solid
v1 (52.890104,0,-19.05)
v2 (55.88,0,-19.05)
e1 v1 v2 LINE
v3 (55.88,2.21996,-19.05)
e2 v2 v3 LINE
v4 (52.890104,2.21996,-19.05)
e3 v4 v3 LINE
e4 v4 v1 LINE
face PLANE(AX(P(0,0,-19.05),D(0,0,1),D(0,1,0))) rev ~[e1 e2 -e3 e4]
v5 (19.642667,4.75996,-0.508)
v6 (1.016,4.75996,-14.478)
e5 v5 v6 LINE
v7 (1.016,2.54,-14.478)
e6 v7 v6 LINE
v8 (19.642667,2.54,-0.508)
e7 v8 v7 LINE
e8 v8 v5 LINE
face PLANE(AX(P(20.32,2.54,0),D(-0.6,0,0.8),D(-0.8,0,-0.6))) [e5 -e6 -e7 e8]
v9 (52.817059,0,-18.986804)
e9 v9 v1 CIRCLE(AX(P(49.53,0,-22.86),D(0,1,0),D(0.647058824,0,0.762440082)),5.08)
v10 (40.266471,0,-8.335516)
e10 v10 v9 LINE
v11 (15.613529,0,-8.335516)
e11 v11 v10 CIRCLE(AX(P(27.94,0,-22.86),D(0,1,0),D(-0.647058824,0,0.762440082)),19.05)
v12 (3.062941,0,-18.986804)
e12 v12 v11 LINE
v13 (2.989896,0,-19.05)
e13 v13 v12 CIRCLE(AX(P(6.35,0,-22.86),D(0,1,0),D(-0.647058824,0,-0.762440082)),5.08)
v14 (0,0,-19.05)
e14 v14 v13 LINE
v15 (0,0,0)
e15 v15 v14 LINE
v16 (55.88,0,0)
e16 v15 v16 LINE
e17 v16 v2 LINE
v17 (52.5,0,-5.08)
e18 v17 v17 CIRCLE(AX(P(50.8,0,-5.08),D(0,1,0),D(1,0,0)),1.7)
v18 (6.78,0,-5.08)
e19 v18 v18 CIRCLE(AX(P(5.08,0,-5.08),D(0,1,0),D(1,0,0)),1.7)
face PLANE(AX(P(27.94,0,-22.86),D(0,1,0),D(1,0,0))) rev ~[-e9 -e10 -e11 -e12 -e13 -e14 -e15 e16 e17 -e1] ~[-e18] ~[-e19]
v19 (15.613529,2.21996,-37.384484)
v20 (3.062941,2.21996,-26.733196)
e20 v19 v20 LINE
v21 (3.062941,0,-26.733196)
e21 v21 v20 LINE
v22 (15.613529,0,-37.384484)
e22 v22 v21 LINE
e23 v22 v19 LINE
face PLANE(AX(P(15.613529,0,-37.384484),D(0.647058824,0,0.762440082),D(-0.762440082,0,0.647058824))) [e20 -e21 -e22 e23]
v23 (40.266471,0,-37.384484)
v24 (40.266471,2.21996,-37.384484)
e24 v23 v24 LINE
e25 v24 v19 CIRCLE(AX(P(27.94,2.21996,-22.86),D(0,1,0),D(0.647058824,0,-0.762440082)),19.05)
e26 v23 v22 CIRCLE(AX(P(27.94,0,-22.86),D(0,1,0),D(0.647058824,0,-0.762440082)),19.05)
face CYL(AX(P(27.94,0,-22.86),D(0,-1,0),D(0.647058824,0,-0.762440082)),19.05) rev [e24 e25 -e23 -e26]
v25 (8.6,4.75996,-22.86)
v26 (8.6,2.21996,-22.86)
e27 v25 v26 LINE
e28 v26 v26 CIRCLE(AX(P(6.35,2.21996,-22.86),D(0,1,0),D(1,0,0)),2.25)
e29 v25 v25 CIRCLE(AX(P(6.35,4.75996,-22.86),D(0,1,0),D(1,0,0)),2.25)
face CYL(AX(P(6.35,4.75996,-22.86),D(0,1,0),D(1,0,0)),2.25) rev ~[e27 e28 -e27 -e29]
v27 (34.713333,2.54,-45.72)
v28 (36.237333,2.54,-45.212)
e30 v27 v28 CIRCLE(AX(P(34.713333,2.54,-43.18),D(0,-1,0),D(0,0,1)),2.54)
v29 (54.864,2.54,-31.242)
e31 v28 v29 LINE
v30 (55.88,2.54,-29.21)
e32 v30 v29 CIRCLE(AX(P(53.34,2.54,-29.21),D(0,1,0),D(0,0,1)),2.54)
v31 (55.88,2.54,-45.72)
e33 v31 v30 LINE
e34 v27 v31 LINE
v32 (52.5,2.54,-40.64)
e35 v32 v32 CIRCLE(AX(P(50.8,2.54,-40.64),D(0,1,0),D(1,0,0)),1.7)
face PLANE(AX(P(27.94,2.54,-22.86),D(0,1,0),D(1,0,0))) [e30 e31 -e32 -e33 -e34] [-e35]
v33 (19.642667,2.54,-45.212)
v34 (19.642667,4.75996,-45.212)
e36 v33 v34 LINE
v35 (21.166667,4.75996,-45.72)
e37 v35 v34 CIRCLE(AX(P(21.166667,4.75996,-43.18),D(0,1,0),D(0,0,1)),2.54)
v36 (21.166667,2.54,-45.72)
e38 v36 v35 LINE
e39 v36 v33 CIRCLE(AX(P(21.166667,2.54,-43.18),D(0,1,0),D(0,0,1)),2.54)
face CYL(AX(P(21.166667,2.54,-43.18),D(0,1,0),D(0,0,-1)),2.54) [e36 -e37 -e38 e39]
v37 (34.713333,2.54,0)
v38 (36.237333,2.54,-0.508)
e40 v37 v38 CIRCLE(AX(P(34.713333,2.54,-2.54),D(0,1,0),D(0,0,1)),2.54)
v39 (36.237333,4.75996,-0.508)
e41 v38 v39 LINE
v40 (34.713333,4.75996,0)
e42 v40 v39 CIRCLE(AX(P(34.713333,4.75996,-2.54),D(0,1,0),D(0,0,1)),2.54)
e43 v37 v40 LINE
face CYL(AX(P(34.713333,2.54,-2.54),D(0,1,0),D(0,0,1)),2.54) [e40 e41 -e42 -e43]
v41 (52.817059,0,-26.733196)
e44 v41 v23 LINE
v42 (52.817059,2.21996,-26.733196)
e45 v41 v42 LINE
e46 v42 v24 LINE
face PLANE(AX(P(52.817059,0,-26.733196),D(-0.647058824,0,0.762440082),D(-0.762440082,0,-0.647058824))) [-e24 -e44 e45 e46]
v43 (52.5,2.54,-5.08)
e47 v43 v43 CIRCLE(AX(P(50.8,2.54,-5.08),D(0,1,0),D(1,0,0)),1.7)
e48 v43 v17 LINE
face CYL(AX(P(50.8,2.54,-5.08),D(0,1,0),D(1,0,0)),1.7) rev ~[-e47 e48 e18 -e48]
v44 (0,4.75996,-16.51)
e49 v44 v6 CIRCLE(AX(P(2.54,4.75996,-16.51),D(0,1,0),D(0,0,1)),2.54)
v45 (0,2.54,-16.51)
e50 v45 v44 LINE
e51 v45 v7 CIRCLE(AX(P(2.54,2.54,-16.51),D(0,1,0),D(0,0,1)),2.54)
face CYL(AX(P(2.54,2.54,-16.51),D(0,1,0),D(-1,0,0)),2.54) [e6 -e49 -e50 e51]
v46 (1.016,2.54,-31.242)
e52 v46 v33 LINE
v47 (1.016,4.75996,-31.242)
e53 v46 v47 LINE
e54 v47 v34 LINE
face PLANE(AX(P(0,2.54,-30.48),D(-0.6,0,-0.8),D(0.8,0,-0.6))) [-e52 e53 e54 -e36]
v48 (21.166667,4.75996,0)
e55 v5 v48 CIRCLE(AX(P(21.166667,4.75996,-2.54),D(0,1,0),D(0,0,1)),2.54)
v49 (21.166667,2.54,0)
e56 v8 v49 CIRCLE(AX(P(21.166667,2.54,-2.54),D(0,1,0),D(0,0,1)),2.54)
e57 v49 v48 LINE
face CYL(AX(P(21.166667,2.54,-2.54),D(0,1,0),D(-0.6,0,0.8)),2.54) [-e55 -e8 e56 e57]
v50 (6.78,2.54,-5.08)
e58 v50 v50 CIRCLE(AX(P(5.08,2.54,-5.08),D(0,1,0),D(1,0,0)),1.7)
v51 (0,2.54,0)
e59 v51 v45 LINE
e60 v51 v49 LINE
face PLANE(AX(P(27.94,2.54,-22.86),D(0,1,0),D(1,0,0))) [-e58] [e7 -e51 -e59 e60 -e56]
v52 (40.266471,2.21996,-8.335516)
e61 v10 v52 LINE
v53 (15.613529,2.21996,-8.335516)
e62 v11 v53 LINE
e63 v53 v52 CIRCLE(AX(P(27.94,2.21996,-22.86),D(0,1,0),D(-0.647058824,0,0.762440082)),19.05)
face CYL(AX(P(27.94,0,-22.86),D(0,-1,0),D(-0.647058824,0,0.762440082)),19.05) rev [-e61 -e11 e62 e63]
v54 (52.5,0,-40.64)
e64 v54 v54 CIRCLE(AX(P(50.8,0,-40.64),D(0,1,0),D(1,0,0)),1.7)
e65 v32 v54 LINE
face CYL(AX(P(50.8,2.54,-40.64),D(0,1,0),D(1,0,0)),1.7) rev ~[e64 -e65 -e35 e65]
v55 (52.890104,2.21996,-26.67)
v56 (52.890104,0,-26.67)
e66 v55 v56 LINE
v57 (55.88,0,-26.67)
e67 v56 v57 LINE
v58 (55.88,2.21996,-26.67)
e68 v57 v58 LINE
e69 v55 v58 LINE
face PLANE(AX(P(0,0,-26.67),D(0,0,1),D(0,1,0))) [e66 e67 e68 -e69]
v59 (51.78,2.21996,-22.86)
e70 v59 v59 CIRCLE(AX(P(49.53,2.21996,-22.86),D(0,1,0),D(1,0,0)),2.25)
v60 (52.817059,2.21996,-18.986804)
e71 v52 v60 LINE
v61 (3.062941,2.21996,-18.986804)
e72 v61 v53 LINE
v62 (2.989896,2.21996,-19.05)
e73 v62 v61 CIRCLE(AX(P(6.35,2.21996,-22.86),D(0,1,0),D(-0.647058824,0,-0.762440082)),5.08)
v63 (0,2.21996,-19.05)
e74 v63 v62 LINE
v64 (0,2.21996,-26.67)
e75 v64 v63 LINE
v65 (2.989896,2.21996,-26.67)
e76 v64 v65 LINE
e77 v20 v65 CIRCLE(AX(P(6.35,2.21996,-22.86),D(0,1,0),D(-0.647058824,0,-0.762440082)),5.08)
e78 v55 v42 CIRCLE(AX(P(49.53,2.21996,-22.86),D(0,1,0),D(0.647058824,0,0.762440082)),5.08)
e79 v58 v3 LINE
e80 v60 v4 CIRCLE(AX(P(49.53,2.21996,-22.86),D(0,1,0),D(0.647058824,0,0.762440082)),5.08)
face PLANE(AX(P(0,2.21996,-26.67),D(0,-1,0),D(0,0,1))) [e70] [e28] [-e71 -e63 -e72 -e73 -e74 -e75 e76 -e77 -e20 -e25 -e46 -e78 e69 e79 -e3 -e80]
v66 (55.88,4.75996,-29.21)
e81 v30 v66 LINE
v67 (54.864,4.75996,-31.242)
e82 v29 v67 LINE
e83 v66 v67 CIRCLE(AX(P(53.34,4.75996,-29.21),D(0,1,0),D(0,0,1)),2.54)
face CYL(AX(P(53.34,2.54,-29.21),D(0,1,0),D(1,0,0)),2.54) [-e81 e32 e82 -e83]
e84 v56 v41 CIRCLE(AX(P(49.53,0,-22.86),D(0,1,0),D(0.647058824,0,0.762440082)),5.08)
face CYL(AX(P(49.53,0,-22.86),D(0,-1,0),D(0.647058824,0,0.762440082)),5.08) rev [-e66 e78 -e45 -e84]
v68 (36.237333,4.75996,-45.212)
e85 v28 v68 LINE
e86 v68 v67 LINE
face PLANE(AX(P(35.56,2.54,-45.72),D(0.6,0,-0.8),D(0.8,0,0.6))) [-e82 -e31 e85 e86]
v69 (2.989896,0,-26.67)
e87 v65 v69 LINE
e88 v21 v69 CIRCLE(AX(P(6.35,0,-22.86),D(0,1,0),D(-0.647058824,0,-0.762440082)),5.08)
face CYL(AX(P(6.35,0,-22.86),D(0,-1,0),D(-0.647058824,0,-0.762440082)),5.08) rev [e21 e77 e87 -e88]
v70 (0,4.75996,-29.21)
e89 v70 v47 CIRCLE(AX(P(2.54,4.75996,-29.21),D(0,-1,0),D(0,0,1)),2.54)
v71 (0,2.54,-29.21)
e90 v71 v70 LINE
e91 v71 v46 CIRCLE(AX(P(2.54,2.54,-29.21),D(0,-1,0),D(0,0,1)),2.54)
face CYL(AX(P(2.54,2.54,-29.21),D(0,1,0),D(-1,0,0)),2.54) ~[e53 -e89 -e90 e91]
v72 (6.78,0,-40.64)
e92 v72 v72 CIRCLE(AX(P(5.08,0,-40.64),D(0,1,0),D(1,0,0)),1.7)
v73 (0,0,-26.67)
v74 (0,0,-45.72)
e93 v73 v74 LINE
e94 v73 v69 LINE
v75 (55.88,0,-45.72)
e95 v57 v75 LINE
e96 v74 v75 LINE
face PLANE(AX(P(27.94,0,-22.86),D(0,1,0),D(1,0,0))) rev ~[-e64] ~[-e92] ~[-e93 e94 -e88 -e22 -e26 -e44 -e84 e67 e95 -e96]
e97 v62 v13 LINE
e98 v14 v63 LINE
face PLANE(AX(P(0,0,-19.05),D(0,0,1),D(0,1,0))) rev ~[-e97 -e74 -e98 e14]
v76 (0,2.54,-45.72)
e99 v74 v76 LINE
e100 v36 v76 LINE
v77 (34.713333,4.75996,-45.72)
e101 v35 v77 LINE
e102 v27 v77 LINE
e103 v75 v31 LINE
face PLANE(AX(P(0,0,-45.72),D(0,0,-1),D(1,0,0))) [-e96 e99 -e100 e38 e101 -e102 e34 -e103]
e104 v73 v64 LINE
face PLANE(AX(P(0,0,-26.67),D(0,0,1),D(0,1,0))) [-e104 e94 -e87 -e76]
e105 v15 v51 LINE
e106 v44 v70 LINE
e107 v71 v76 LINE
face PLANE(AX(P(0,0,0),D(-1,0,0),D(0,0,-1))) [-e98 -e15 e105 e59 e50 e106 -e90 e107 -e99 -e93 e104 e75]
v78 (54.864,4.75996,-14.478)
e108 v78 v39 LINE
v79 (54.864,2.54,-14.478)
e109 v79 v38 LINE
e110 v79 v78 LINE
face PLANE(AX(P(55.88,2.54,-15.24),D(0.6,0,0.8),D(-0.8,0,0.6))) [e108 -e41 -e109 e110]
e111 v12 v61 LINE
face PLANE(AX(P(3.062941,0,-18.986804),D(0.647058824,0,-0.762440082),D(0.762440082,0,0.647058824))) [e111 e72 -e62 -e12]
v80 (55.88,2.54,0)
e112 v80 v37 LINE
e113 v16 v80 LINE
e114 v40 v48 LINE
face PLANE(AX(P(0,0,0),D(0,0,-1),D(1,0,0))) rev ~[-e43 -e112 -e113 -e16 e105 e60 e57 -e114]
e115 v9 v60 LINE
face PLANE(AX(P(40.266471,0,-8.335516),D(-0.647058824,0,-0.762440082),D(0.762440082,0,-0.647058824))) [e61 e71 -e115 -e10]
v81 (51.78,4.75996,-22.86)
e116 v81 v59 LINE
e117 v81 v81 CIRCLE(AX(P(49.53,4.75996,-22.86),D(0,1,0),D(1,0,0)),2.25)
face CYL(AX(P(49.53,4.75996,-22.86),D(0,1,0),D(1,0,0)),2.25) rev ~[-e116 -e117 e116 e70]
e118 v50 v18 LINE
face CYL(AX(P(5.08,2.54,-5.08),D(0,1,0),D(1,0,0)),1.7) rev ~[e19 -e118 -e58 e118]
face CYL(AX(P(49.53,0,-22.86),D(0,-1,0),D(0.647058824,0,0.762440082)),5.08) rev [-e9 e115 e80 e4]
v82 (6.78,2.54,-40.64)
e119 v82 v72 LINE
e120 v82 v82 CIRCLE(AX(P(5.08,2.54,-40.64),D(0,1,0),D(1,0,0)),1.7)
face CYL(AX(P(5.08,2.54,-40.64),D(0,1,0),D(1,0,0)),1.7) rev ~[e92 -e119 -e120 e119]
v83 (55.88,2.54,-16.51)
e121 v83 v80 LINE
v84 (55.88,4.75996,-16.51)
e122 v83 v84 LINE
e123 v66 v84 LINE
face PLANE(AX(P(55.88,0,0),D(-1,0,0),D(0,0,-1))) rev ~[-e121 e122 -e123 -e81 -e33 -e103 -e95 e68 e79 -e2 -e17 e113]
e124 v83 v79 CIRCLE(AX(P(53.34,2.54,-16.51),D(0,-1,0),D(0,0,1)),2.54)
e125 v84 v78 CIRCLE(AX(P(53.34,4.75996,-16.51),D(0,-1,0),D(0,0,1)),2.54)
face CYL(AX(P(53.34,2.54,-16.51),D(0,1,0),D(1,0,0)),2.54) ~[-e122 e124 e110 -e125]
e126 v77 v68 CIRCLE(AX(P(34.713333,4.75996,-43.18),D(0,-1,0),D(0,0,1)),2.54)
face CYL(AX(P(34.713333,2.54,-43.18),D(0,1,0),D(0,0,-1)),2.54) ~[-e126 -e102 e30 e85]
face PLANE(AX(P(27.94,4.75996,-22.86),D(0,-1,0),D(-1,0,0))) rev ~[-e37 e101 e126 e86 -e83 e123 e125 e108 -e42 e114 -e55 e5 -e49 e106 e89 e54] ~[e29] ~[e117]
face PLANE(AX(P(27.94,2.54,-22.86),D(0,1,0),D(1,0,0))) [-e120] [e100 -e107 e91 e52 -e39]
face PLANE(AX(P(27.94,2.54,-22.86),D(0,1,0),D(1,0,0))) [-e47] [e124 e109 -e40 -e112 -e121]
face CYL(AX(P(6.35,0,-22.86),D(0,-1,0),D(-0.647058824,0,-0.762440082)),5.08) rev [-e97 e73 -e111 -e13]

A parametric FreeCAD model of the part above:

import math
import FreeCAD as App
import Part
import Sketcher

V = App.Vector
Q = App.Units.Quantity


def edges_at(feature, points):
    """Names of the edges that pass closest to the given points."""
    edges = feature.Shape.Edges
    near = lambda p: min(range(len(edges)), key=lambda i: edges[i].distToShape(Part.Vertex(*p))[0])
    return sorted({f"Edge{near(p) + 1}" for p in points})

doc = App.newDocument("Part")
body = doc.addObject("PartDesign::Body", "Body")

sketch1 = body.newObject("Sketcher::SketchObject", "Sketch")
sketch1.AttachmentSupport = (doc.getObject("XZ_Plane"), [""])
sketch1.MapMode = "FlatFace"
sketch1.addGeometry([
    Part.LineSegment(V(0, -45.72, 0), V(0, 0, 0)),
    Part.LineSegment(V(0, 0, 0), V(55.88, 0, 0)),
    Part.LineSegment(V(55.88, 0, 0), V(55.88, -45.72, 0)),
    Part.LineSegment(V(55.88, -45.72, 0), V(0, -45.72, 0)),
], False)
sketch1.addConstraint([
    Sketcher.Constraint("Coincident", 0, 2, 1, 1),
    Sketcher.Constraint("Coincident", 1, 2, 2, 1),
    Sketcher.Constraint("Coincident", 2, 2, 3, 1),
    Sketcher.Constraint("Coincident", 3, 2, 0, 1),
    Sketcher.Constraint("Vertical", 0),
    Sketcher.Constraint("Horizontal", 1),
    Sketcher.Constraint("Vertical", 2),
    Sketcher.Constraint("Horizontal", 3),
    Sketcher.Constraint("Coincident", 0, 2, -1, 1),
    Sketcher.Constraint("DistanceX", 1, 1, 1, 2, Q("2.2 in")),
    Sketcher.Constraint("DistanceY", 0, 1, 0, 2, Q("1.8 in")),
])
pad1 = body.newObject("PartDesign::Pad", "Pad")
pad1.Profile = sketch1
pad1.Length = Q("0.1 in")
pad1.Reversed = True

sketch2 = body.newObject("Sketcher::SketchObject", "Sketch001")
sketch2.AttachmentSupport = (doc.getObject("XZ_Plane"), [""])
sketch2.MapMode = "FlatFace"
sketch2.AttachmentOffset = App.Placement(V(0, 0, -0.1 * 25.4), App.Rotation())
sketch2.addGeometry(Part.Circle(V(5.08, -40.64, 0), V(0, 0, 1), 1.7), False)
sketch2.addConstraint([
    Sketcher.Constraint("DistanceX", -1, 1, 0, 3, Q("0.2 in")),
    Sketcher.Constraint("DistanceY", 0, 3, -1, 1, Q("1.6 in")),
    Sketcher.Constraint("Diameter", 0, Q("3.4 mm")),
])
pocket1 = body.newObject("PartDesign::Pocket", "Pocket")
pocket1.Profile = sketch2
pocket1.Type = "UpToFirst"
pocket1.Reversed = True

sketch3 = body.newObject("Sketcher::SketchObject", "Sketch002")
sketch3.AttachmentSupport = (doc.getObject("XZ_Plane"), [""])
sketch3.MapMode = "FlatFace"
sketch3.AttachmentOffset = App.Placement(V(0, 0, -0.1 * 25.4), App.Rotation())
sketch3.addGeometry(Part.Circle(V(50.8, -40.64, 0), V(0, 0, 1), 1.7), False)
sketch3.addConstraint([
    Sketcher.Constraint("DistanceX", -1, 1, 0, 3, Q("2 in")),
    Sketcher.Constraint("DistanceY", 0, 3, -1, 1, Q("1.6 in")),
    Sketcher.Constraint("Diameter", 0, Q("3.4 mm")),
])
pocket2 = body.newObject("PartDesign::Pocket", "Pocket001")
pocket2.Profile = sketch3
pocket2.Type = "UpToFirst"
pocket2.Reversed = True

sketch4 = body.newObject("Sketcher::SketchObject", "Sketch003")
sketch4.AttachmentSupport = (doc.getObject("XZ_Plane"), [""])
sketch4.MapMode = "FlatFace"
sketch4.AttachmentOffset = App.Placement(V(0, 0, -0.1 * 25.4), App.Rotation())
sketch4.addGeometry(Part.Circle(V(50.8, -5.08, 0), V(0, 0, 1), 1.7), False)
sketch4.addConstraint([
    Sketcher.Constraint("DistanceX", -1, 1, 0, 3, Q("2 in")),
    Sketcher.Constraint("DistanceY", 0, 3, -1, 1, Q("0.2 in")),
    Sketcher.Constraint("Diameter", 0, Q("3.4 mm")),
])
pocket3 = body.newObject("PartDesign::Pocket", "Pocket002")
pocket3.Profile = sketch4
pocket3.Type = "UpToFirst"
pocket3.Reversed = True

sketch5 = body.newObject("Sketcher::SketchObject", "Sketch004")
sketch5.AttachmentSupport = (doc.getObject("XZ_Plane"), [""])
sketch5.MapMode = "FlatFace"
sketch5.AttachmentOffset = App.Placement(V(0, 0, -0.1 * 25.4), App.Rotation())
sketch5.addGeometry(Part.Circle(V(5.08, -5.08, 0), V(0, 0, 1), 1.7), False)
sketch5.addConstraint([
    Sketcher.Constraint("DistanceX", -1, 1, 0, 3, Q("0.2 in")),
    Sketcher.Constraint("DistanceY", 0, 3, -1, 1, Q("0.2 in")),
    Sketcher.Constraint("Diameter", 0, Q("3.4 mm")),
])
pocket4 = body.newObject("PartDesign::Pocket", "Pocket003")
pocket4.Profile = sketch5
pocket4.Type = "UpToFirst"
pocket4.Reversed = True

sketch6 = body.newObject("Sketcher::SketchObject", "Sketch005")
sketch6.AttachmentSupport = (doc.getObject("XZ_Plane"), [""])
sketch6.MapMode = "FlatFace"
sketch6.AttachmentOffset = App.Placement(V(0, 0, -0.1 * 25.4), App.Rotation())
sketch6.addGeometry([
    Part.LineSegment(V(20.32, -45.72, 0), V(0, -30.48, 0)),
    Part.LineSegment(V(0, -30.48, 0), V(0, -15.24, 0)),
    Part.LineSegment(V(0, -15.24, 0), V(20.32, 0, 0)),
    Part.LineSegment(V(20.32, 0, 0), V(35.56, 0, 0)),
    Part.LineSegment(V(35.56, 0, 0), V(55.88, -15.24, 0)),
    Part.LineSegment(V(55.88, -15.24, 0), V(55.88, -30.48, 0)),
    Part.LineSegment(V(55.88, -30.48, 0), V(35.56, -45.72, 0)),
    Part.LineSegment(V(35.56, -45.72, 0), V(20.32, -45.72, 0)),
], False)
sketch6.addConstraint([
    Sketcher.Constraint("Coincident", 0, 2, 1, 1),
    Sketcher.Constraint("Coincident", 1, 2, 2, 1),
    Sketcher.Constraint("Coincident", 2, 2, 3, 1),
    Sketcher.Constraint("Coincident", 3, 2, 4, 1),
    Sketcher.Constraint("Coincident", 4, 2, 5, 1),
    Sketcher.Constraint("Coincident", 5, 2, 6, 1),
    Sketcher.Constraint("Coincident", 6, 2, 7, 1),
    Sketcher.Constraint("Coincident", 7, 2, 0, 1),
    Sketcher.Constraint("Vertical", 1),
    Sketcher.Constraint("Horizontal", 3),
    Sketcher.Constraint("Vertical", 5),
    Sketcher.Constraint("Horizontal", 7),
    Sketcher.Constraint("PointOnObject", 0, 2, -2),
    Sketcher.Constraint("PointOnObject", 2, 2, -1),
    Sketcher.Constraint("Parallel", 0, 4),
    Sketcher.Constraint("Parallel", 2, 6),
    Sketcher.Constraint("Horizontal", 1, 2, 4, 2),
    Sketcher.Constraint("Horizontal", 0, 2, 5, 2),
    Sketcher.Constraint("Vertical", 3, 2, 6, 2),
    Sketcher.Constraint("Vertical", 2, 2, 7, 2),
    Sketcher.Constraint("Equal", 7, 1),
    Sketcher.Constraint("Distance", 0, Q("1 in")),
    Sketcher.Constraint("DistanceX", 3, 1, 3, 2, Q("0.6 in")),
    Sketcher.Constraint("DistanceY", 0, 2, -1, 1, Q("1.2 in")),
])
pad2 = body.newObject("PartDesign::Pad", "Pad001")
pad2.Profile = sketch6
pad2.Length = Q("0.0874 in")
pad2.Reversed = True

sketch7 = body.newObject("Sketcher::SketchObject", "Sketch006")
sketch7.AttachmentSupport = (doc.getObject("XZ_Plane"), [""])
sketch7.MapMode = "FlatFace"
sketch7.addGeometry([
    Part.LineSegment(V(15.613529, -8.335516, 0), V(3.062941, -18.986804, 0)),
    Part.ArcOfCircle(Part.Circle(V(6.35, -22.86, 0), V(0, 0, 1), 5.08), math.radians(130.320215), math.radians(229.679785)),
    Part.LineSegment(V(3.062941, -26.733196, 0), V(15.613529, -37.384484, 0)),
    Part.ArcOfCircle(Part.Circle(V(27.94, -22.86, 0), V(0, 0, 1), 19.05), math.radians(-130.320215), math.radians(-49.679785)),
    Part.LineSegment(V(40.266471, -37.384484, 0), V(52.817059, -26.733196, 0)),
    Part.ArcOfCircle(Part.Circle(V(49.53, -22.86, 0), V(0, 0, 1), 5.08), math.radians(-49.679785), math.radians(49.679785)),
    Part.LineSegment(V(52.817059, -18.986804, 0), V(40.266471, -8.335516, 0)),
    Part.ArcOfCircle(Part.Circle(V(27.94, -22.86, 0), V(0, 0, 1), 19.05), math.radians(49.679785), math.radians(130.320215)),
], False)
sketch7.addConstraint([
    Sketcher.Constraint("Tangent", 0, 2, 1, 1),
    Sketcher.Constraint("Tangent", 1, 2, 2, 1),
    Sketcher.Constraint("Tangent", 2, 2, 3, 1),
    Sketcher.Constraint("Tangent", 3, 2, 4, 1),
    Sketcher.Constraint("Tangent", 4, 2, 5, 1),
    Sketcher.Constraint("Tangent", 5, 2, 6, 1),
    Sketcher.Constraint("Tangent", 6, 2, 7, 1),
    Sketcher.Constraint("Tangent", 7, 2, 0, 1),
    Sketcher.Constraint("Coincident", 7, 3, 3, 3),
    Sketcher.Constraint("Equal", 1, 5),
    Sketcher.Constraint("Equal", 3, 7),
    Sketcher.Constraint("Parallel", 0, 4),
    Sketcher.Constraint("Parallel", 2, 6),
    Sketcher.Constraint("Horizontal", 1, 3, 3, 3),
    Sketcher.Constraint("Radius", 1, Q("0.2 in")),
    Sketcher.Constraint("Radius", 3, Q("0.75 in")),
    Sketcher.Constraint("DistanceY", 1, 3, -1, 1, Q("0.9 in")),
    Sketcher.Constraint("DistanceX", -1, 1, 3, 3, Q("1.1 in")),
    Sketcher.Constraint("DistanceX", 1, 3, 5, 3, Q("1.7 in")),
])
pocket5 = body.newObject("PartDesign::Pocket", "Pocket004")
pocket5.Profile = sketch7
pocket5.Length = Q("0.0874 in")

sketch8 = body.newObject("Sketcher::SketchObject", "Sketch007")
sketch8.AttachmentSupport = (doc.getObject("XZ_Plane"), [""])
sketch8.MapMode = "FlatFace"
sketch8.AttachmentOffset = App.Placement(V(0, 0, -0.1874 * 25.4), App.Rotation())
sketch8.addGeometry(Part.Circle(V(6.35, -22.86, 0), V(0, 0, 1), 2.25), False)
sketch8.addConstraint([
    Sketcher.Constraint("DistanceY", 0, 3, -1, 1, Q("0.9 in")),
    Sketcher.Constraint("Diameter", 0, Q("4.5 mm")),
    Sketcher.Constraint("DistanceX", -1, 1, 0, 3, Q("0.25 in")),
])
pocket6 = body.newObject("PartDesign::Pocket", "Pocket005")
pocket6.Profile = sketch8
pocket6.Type = "UpToFirst"
pocket6.Reversed = True

sketch9 = body.newObject("Sketcher::SketchObject", "Sketch008")
sketch9.AttachmentSupport = (doc.getObject("XZ_Plane"), [""])
sketch9.MapMode = "FlatFace"
sketch9.AttachmentOffset = App.Placement(V(0, 0, -0.1874 * 25.4), App.Rotation())
sketch9.addGeometry(Part.Circle(V(49.53, -22.86, 0), V(0, 0, 1), 2.25), False)
sketch9.addConstraint([
    Sketcher.Constraint("DistanceY", 0, 3, -1, 1, Q("0.9 in")),
    Sketcher.Constraint("Diameter", 0, Q("4.5 mm")),
    Sketcher.Constraint("DistanceX", -1, 1, 0, 3, Q("1.95 in")),
])
pocket7 = body.newObject("PartDesign::Pocket", "Pocket006")
pocket7.Profile = sketch9
pocket7.Type = "UpToFirst"
pocket7.Reversed = True

sketch10 = body.newObject("Sketcher::SketchObject", "Sketch009")
sketch10.AttachmentSupport = (doc.getObject("YZ_Plane"), [""])
sketch10.MapMode = "FlatFace"
sketch10.addGeometry([
    Part.LineSegment(V(2.21996, -26.67, 0), V(0, -26.67, 0)),
    Part.LineSegment(V(0, -26.67, 0), V(0, -19.05, 0)),
    Part.LineSegment(V(0, -19.05, 0), V(2.21996, -19.05, 0)),
    Part.LineSegment(V(2.21996, -19.05, 0), V(2.21996, -26.67, 0)),
], False)
sketch10.addConstraint([
    Sketcher.Constraint("Coincident", 0, 2, 1, 1),
    Sketcher.Constraint("Coincident", 1, 2, 2, 1),
    Sketcher.Constraint("Coincident", 2, 2, 3, 1),
    Sketcher.Constraint("Coincident", 3, 2, 0, 1),
    Sketcher.Constraint("Horizontal", 0),
    Sketcher.Constraint("Vertical", 1),
    Sketcher.Constraint("Horizontal", 2),
    Sketcher.Constraint("Vertical", 3),
    Sketcher.Constraint("PointOnObject", 0, 2, -2),
    Sketcher.Constraint("DistanceY", 1, 1, 1, 2, Q("0.3 in")),
    Sketcher.Constraint("DistanceY", 0, 2, -1, 1, Q("1.05 in")),
    Sketcher.Constraint("DistanceX", 0, 2, 0, 1, Q("0.0874 in")),
])
pocket8 = body.newObject("PartDesign::Pocket", "Pocket007")
pocket8.Profile = sketch10
pocket8.Type = "ThroughAll"
pocket8.Reversed = True
doc.recompute()

fillet = body.newObject("PartDesign::Fillet", "Fillet")
fillet.Base = (pocket8, edges_at(pocket8, [
    (0, 3.65, -30.48),
    (0, 3.65, -15.24),
    (20.32, 3.65, 0),
    (35.56, 3.65, 0),
    (55.88, 3.65, -15.24),
    (55.88, 3.65, -30.48),
    (35.56, 3.65, -45.72),
    (20.32, 3.65, -45.72),
]))
fillet.Radius = Q("0.1 in")

doc.recompute()
